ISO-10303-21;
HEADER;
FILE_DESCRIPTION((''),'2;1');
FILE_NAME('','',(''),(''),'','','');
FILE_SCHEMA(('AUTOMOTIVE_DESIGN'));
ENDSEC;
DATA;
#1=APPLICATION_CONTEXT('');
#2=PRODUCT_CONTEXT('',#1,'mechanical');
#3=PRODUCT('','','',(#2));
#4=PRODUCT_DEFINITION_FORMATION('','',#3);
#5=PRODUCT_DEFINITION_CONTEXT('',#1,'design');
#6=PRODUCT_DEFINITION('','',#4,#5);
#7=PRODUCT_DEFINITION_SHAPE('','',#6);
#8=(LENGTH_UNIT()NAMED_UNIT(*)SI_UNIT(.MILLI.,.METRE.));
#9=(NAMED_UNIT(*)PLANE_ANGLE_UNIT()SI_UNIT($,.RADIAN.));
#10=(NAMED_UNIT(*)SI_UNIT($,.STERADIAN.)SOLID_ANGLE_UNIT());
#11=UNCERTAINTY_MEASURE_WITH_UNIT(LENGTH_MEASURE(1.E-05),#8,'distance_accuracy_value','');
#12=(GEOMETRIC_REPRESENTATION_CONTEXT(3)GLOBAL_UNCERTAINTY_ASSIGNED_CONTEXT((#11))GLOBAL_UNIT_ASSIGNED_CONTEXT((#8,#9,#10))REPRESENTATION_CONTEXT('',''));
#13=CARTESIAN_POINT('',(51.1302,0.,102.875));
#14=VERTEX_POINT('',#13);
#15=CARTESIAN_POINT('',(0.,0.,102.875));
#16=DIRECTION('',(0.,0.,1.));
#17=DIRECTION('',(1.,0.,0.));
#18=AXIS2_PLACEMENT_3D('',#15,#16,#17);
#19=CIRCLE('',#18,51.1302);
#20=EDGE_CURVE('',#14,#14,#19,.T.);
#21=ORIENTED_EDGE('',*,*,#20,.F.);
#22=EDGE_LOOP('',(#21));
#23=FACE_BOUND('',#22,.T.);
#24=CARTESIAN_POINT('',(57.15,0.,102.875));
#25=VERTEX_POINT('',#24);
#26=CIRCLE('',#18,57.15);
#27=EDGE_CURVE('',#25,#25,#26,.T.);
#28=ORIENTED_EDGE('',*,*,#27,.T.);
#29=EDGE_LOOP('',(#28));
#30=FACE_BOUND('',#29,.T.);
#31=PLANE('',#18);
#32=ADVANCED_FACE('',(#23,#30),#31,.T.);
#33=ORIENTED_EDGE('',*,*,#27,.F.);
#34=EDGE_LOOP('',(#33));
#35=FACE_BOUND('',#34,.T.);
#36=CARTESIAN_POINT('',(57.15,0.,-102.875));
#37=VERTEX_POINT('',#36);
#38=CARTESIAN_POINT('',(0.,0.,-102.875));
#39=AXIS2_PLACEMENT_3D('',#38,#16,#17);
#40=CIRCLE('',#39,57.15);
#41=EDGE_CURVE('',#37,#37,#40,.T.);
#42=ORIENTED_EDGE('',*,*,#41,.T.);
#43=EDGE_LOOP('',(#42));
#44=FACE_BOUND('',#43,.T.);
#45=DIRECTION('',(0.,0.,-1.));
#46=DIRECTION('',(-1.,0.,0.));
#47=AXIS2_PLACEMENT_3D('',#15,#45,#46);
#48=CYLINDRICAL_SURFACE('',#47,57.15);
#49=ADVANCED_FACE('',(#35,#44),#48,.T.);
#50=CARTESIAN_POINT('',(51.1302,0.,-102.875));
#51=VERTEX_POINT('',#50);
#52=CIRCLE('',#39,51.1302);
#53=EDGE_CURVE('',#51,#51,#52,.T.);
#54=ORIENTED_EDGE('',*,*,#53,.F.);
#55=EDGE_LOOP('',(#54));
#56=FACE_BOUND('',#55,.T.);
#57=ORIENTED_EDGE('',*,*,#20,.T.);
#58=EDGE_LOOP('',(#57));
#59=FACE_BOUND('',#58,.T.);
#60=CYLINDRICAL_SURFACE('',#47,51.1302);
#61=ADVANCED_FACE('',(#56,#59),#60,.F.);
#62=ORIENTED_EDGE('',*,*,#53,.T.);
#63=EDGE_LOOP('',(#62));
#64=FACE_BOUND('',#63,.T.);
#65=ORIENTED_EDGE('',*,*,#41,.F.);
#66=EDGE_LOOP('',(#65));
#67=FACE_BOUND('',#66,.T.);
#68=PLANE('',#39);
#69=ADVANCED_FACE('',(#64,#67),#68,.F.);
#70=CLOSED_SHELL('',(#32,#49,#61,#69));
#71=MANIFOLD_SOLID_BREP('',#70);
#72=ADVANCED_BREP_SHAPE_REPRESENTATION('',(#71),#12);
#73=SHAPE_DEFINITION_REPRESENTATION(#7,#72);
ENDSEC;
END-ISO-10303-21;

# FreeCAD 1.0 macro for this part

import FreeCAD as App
import Part
import Sketcher
from FreeCAD import Vector
Q = App.Units.Quantity

doc = App.newDocument("Part")
body = doc.addObject("PartDesign::Body", "Body")

# Sketch on XY plane
sketch1 = body.newObject("Sketcher::SketchObject", "Sketch")
sketch1.AttachmentSupport = (doc.getObject("XY_Plane"), [""])
sketch1.MapMode = "FlatFace"
sketch1.addGeometry([
    Part.Circle(Vector(0, 0, 0), Vector(0, 0, 1), 57.15),
    Part.Circle(Vector(0, 0, 0), Vector(0, 0, 1), 51.1302),
], False)
sketch1.addConstraint([
    Sketcher.Constraint("Coincident", 0, 3, -1, 1),
    Sketcher.Constraint("Coincident", 1, 3, -1, 1),
    Sketcher.Constraint("Diameter", 0, Q("4.5 in")),
    Sketcher.Constraint("Diameter", 1, Q("4.026 in")),
])
pad1 = body.newObject("PartDesign::Pad", "Pad")
pad1.Profile = sketch1
pad1.Length = 205.75
pad1.Midplane = True

doc.recompute()
